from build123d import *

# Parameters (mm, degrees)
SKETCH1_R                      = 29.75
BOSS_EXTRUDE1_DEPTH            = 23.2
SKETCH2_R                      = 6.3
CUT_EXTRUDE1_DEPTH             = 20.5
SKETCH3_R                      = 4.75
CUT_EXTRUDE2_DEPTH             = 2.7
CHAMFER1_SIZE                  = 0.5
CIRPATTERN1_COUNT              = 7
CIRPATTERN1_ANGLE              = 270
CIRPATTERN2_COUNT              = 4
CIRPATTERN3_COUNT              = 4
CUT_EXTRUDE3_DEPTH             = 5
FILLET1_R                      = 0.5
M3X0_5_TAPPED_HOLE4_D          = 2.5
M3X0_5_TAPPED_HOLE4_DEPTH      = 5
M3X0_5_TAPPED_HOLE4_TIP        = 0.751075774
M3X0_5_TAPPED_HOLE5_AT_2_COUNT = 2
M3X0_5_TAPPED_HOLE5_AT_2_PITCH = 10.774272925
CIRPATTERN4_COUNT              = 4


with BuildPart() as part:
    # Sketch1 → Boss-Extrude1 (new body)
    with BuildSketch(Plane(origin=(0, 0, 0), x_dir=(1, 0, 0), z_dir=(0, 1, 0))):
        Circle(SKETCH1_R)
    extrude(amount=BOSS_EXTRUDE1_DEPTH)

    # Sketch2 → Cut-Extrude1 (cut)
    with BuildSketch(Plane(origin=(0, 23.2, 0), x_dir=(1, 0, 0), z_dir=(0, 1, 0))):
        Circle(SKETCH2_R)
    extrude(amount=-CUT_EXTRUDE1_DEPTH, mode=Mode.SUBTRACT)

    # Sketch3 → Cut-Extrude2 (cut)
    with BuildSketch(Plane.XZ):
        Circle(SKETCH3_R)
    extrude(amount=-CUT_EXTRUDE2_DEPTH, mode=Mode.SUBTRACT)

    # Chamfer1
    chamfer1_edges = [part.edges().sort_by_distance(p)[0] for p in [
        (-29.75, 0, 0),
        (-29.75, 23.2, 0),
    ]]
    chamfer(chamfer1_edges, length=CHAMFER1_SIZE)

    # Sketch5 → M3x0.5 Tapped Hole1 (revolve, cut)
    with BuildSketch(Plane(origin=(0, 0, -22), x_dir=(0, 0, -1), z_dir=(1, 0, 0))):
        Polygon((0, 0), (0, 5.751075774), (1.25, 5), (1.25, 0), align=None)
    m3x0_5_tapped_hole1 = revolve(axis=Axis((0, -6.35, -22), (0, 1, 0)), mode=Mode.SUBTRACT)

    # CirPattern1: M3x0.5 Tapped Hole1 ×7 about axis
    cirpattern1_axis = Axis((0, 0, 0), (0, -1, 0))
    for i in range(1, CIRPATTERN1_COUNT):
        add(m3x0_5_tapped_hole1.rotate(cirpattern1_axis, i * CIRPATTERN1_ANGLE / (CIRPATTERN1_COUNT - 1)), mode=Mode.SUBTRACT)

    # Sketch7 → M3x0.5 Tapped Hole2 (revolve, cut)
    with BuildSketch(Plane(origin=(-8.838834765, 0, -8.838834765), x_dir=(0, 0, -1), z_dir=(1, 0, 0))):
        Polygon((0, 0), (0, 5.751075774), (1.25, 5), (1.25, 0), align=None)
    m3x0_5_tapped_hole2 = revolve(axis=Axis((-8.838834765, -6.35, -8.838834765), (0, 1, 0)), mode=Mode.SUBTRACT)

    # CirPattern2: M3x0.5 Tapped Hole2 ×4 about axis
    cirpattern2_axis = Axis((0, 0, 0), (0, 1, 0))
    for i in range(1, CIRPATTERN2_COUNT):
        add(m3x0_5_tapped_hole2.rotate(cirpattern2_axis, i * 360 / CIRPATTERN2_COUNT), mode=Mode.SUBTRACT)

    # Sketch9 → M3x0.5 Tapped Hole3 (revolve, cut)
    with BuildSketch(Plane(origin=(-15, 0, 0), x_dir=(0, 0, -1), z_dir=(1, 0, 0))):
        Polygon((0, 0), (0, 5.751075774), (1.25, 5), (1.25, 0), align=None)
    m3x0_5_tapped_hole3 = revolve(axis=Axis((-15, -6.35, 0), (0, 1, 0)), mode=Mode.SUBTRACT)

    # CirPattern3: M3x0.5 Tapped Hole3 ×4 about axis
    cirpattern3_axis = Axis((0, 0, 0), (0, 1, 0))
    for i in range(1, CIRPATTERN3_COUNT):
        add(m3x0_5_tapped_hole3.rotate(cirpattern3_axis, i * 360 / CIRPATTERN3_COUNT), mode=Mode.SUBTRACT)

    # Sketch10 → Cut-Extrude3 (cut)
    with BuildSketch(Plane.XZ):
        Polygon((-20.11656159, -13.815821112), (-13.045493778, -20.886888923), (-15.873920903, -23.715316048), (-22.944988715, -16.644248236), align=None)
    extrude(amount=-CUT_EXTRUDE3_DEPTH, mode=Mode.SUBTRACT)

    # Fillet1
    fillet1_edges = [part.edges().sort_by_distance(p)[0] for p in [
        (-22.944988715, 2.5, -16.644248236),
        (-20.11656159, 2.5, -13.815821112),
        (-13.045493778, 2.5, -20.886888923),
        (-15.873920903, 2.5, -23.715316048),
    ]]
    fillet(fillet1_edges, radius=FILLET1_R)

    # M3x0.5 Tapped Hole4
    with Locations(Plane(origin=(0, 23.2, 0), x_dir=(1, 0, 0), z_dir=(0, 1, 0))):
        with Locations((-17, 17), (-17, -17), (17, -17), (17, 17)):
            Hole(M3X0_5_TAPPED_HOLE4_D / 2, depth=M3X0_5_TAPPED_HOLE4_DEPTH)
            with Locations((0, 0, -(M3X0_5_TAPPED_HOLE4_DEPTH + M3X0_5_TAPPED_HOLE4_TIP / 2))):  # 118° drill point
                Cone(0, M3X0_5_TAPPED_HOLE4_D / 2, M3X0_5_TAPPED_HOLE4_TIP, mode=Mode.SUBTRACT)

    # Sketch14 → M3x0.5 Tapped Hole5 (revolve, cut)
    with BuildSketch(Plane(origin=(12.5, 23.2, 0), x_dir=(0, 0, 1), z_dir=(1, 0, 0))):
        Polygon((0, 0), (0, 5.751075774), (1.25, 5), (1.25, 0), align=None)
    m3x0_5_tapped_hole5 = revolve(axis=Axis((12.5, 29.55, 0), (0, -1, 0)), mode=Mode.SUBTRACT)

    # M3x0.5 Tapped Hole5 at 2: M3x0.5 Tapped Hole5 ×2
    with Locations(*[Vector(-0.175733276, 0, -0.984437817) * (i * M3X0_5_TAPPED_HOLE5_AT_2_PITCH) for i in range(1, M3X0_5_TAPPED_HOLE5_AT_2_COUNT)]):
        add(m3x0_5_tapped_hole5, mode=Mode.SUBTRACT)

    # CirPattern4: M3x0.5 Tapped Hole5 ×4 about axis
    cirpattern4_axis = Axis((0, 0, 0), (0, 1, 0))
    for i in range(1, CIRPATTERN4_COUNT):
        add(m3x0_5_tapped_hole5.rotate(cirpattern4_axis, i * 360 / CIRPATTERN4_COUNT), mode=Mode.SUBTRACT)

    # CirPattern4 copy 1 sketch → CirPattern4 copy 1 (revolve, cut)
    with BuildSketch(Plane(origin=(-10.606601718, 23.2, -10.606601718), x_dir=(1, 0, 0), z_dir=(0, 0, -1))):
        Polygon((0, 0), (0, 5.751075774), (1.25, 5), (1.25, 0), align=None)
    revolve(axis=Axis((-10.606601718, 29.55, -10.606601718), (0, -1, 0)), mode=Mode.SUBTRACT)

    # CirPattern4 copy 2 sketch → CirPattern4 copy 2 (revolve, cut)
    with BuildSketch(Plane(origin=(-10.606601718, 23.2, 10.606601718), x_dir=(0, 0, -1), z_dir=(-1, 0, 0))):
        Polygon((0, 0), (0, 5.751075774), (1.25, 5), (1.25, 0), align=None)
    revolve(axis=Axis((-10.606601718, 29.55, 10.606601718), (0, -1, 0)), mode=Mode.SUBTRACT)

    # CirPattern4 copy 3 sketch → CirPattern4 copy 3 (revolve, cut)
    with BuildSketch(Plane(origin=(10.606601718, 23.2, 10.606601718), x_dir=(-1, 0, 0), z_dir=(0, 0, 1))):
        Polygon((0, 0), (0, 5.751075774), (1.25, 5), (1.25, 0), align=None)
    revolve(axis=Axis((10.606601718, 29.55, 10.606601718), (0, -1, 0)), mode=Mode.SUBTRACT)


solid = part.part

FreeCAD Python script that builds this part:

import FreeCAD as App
import Part
import Sketcher
from FreeCAD import Vector
Q = App.Units.Quantity


def edges_at(feature, points):
    """Names of the edges that pass closest to the given points."""
    edges = feature.Shape.Edges
    near = lambda p: min(range(len(edges)), key=lambda i: edges[i].distToShape(Part.Vertex(*p))[0])
    return sorted({f"Edge{near(p) + 1}" for p in points})


def add_polygon(sketch, points):
    """Adds a closed chain of lines whose ends are joined by coincident constraints."""
    first, n = sketch.GeometryCount, len(points)
    for a, b in zip(points, points[1:] + points[:1]):
        sketch.addGeometry(Part.LineSegment(App.Vector(*a, 0), App.Vector(*b, 0)), False)
    for i in range(n):
        sketch.addConstraint(Sketcher.Constraint("Coincident", first + i, 2, first + (i + 1) % n, 1))

doc = App.newDocument("Part")
body = doc.addObject("PartDesign::Body", "Body")

# Sketch on XZ plane
sketch1 = body.newObject("Sketcher::SketchObject", "Sketch")
sketch1.AttachmentSupport = (doc.getObject("XZ_Plane"), [""])
sketch1.MapMode = "FlatFace"
sketch1.addGeometry(Part.Circle(Vector(0, 0, 0), Vector(0, 0, 1), 30), False)
sketch1.addConstraint([
    Sketcher.Constraint("Coincident", 0, 3, -1, 1),
    Sketcher.Constraint("Diameter", 0, 59.5),
])
pad1 = body.newObject("PartDesign::Pad", "Pad")
pad1.Profile = sketch1
pad1.Length = 23.2
pad1.Reversed = True

# Sketch on XZ plane
sketch2 = body.newObject("Sketcher::SketchObject", "Sketch001")
sketch2.AttachmentSupport = (doc.getObject("XZ_Plane"), [""])
sketch2.MapMode = "FlatFace"
sketch2.AttachmentOffset = App.Placement(Vector(0, 0, -23.2), App.Rotation())
sketch2.addGeometry(Part.Circle(Vector(0, 0, 0), Vector(0, 0, 1), 6), False)
sketch2.addConstraint([
    Sketcher.Constraint("Coincident", 0, 3, -1, 1),
    Sketcher.Constraint("Diameter", 0, 12.6),
])
pocket1 = body.newObject("PartDesign::Pocket", "Pocket")
pocket1.Profile = sketch2
pocket1.Length = 20.5
pocket1.Reversed = True

# Sketch on XZ plane
sketch3 = body.newObject("Sketcher::SketchObject", "Sketch002")
sketch3.AttachmentSupport = (doc.getObject("XZ_Plane"), [""])
sketch3.MapMode = "FlatFace"
sketch3.addGeometry(Part.Circle(Vector(0, 0, 0), Vector(0, 0, 1), 4.8), False)
sketch3.addConstraint([
    Sketcher.Constraint("Coincident", 0, 3, -1, 1),
    Sketcher.Constraint("Diameter", 0, 9.5),
])
pocket2 = body.newObject("PartDesign::Pocket", "Pocket001")
pocket2.Profile = sketch3
pocket2.Length = 2.7
doc.recompute()

chamfer = body.newObject("PartDesign::Chamfer", "Chamfer")
chamfer.Base = (pocket2, edges_at(pocket2, [(-29.75, 0, 0), (-29.75, 23.2, 0)]))
chamfer.Size = 0.5

# Sketch on YZ plane
sketch4 = body.newObject("Sketcher::SketchObject", "Sketch003")
sketch4.AttachmentSupport = (doc.getObject("YZ_Plane"), [""])
sketch4.MapMode = "FlatFace"
add_polygon(sketch4, [(5.8, -22), (0, -22), (0, -23.2), (5, -23.2)])  # lines 0-3
sketch4.addGeometry(Part.LineSegment(Vector(0, -22, 0), Vector(5.8, -22, 0)), True)  # axis
sketch4.addConstraint([
    Sketcher.Constraint("Horizontal", 0),
    Sketcher.Constraint("Vertical", 1),
    Sketcher.Constraint("Horizontal", 2),
    Sketcher.Constraint("Horizontal", 4),
    Sketcher.Constraint("Coincident", 4, 1, 0, 2),
    Sketcher.Constraint("PointOnObject", 0, 2, -2),
    Sketcher.Constraint("Equal", 0, 4),
    Sketcher.Constraint("DistanceX", 2, 1, 2, 2, 5.0),
    Sketcher.Constraint("Angle", 3, Q("59 deg")),
    Sketcher.Constraint("DistanceY", 0, 2, -1, 1, 22.0),
    Sketcher.Constraint("DistanceY", 1, 2, 1, 1, 1.25),
])
groove = body.newObject("PartDesign::Groove", "Groove")
groove.Profile = sketch4
groove.ReferenceAxis = (sketch4, ["Axis0"])
groove.Angle = 360
doc.recompute()

polarpattern = body.newObject("PartDesign::PolarPattern", "PolarPattern")
polarpattern.Originals = [groove]
polarpattern.Axis = (doc.getObject("Y_Axis"), [""])
polarpattern.Angle = 270
polarpattern.Occurrences = 7
polarpattern.Reversed = True
body.Tip = polarpattern

# Sketch on YZ plane
sketch5 = body.newObject("Sketcher::SketchObject", "Sketch004")
sketch5.AttachmentSupport = (doc.getObject("YZ_Plane"), [""])
sketch5.MapMode = "FlatFace"
sketch5.AttachmentOffset = App.Placement(Vector(0, 0, -8.838835), App.Rotation())
add_polygon(sketch5, [(5.8, -8.8), (0, -8.8), (0, -10.1), (5, -10.1)])  # lines 0-3
sketch5.addGeometry(Part.LineSegment(Vector(0, -8.8, 0), Vector(5.8, -8.8, 0)), True)  # axis
sketch5.addConstraint([
    Sketcher.Constraint("Horizontal", 0),
    Sketcher.Constraint("Vertical", 1),
    Sketcher.Constraint("Horizontal", 2),
    Sketcher.Constraint("Horizontal", 4),
    Sketcher.Constraint("Coincident", 4, 1, 0, 2),
    Sketcher.Constraint("PointOnObject", 0, 2, -2),
    Sketcher.Constraint("Equal", 0, 4),
    Sketcher.Constraint("DistanceX", 2, 1, 2, 2, 5.0),
    Sketcher.Constraint("Angle", 3, Q("59 deg")),
    Sketcher.Constraint("DistanceY", 1, 2, 1, 1, 1.25),
    Sketcher.Constraint("DistanceY", 0, 2, -1, 1, 8.838835),
])
groove2 = body.newObject("PartDesign::Groove", "Groove001")
groove2.Profile = sketch5
groove2.ReferenceAxis = (sketch5, ["Axis0"])
groove2.Angle = 360
doc.recompute()

polarpattern2 = body.newObject("PartDesign::PolarPattern", "PolarPattern001")
polarpattern2.Originals = [groove2]
polarpattern2.Axis = (doc.getObject("Y_Axis"), [""])
polarpattern2.Angle = 360
polarpattern2.Occurrences = 4
body.Tip = polarpattern2

# Sketch on YZ plane
sketch6 = body.newObject("Sketcher::SketchObject", "Sketch005")
sketch6.AttachmentSupport = (doc.getObject("YZ_Plane"), [""])
sketch6.MapMode = "FlatFace"
sketch6.AttachmentOffset = App.Placement(Vector(0, 0, -15), App.Rotation())
add_polygon(sketch6, [(5.8, 0), (0, 0), (0, -1.2), (5, -1.2)])  # lines 0-3
sketch6.addConstraint([
    Sketcher.Constraint("Horizontal", 0),
    Sketcher.Constraint("Vertical", 1),
    Sketcher.Constraint("Horizontal", 2),
    Sketcher.Constraint("Coincident", 0, 2, -1, 1),
    Sketcher.Constraint("DistanceX", 2, 1, 2, 2, 5.0),
    Sketcher.Constraint("Angle", 3, Q("59 deg")),
    Sketcher.Constraint("DistanceY", 1, 2, 1, 1, 1.25),
])
groove3 = body.newObject("PartDesign::Groove", "Groove002")
groove3.Profile = sketch6
groove3.ReferenceAxis = (sketch6, ["H_Axis"])
groove3.Angle = 360
doc.recompute()

polarpattern3 = body.newObject("PartDesign::PolarPattern", "PolarPattern002")
polarpattern3.Originals = [groove3]
polarpattern3.Axis = (doc.getObject("Y_Axis"), [""])
polarpattern3.Angle = 360
polarpattern3.Occurrences = 4
body.Tip = polarpattern3

# Sketch on XZ plane
sketch7 = body.newObject("Sketcher::SketchObject", "Sketch006")
sketch7.AttachmentSupport = (doc.getObject("XZ_Plane"), [""])
sketch7.MapMode = "FlatFace"
add_polygon(sketch7, [(-13, -20.9), (-20.1, -13.8), (-22.9, -16.6), (-15.9, -23.7)])  # lines 0-3
sketch7.addConstraint([
    Sketcher.Constraint("Perpendicular", 0, 1),
    Sketcher.Constraint("Perpendicular", 1, 2),
    Sketcher.Constraint("Perpendicular", 2, 3),
    Sketcher.Constraint("Angle", 0, Q("135 deg")),
    Sketcher.Constraint("Distance", 0, 10.0),
    Sketcher.Constraint("Distance", 1, 4.0),
    Sketcher.Constraint("DistanceX", 0, 2, -1, 1, 20.116562),
    Sketcher.Constraint("DistanceY", 0, 2, -1, 1, 13.815821),
])
pocket3 = body.newObject("PartDesign::Pocket", "Pocket002")
pocket3.Profile = sketch7
pocket3.Length = 5
doc.recompute()

fillet = body.newObject("PartDesign::Fillet", "Fillet")
fillet.Base = (pocket3, edges_at(pocket3, [
    (-22.945, 2.5, -16.644),
    (-20.117, 2.5, -13.816),
    (-13.045, 2.5, -20.887),
    (-15.874, 2.5, -23.715),
]))
fillet.Radius = 0.5

# Sketch on XZ plane
sketch8 = body.newObject("Sketcher::SketchObject", "Sketch007")
sketch8.AttachmentSupport = (doc.getObject("XZ_Plane"), [""])
sketch8.MapMode = "FlatFace"
sketch8.AttachmentOffset = App.Placement(Vector(0, 0, -23.2), App.Rotation())
sketch8.addGeometry([
    Part.Circle(Vector(-17, -17, 0), Vector(0, 0, 1), 1.2),
    Part.Circle(Vector(-17, 17, 0), Vector(0, 0, 1), 1.2),
    Part.Circle(Vector(17, 17, 0), Vector(0, 0, 1), 1.2),
    Part.Circle(Vector(17, -17, 0), Vector(0, 0, 1), 1.2),
], False)
sketch8.addConstraint([
    Sketcher.Constraint("Equal", 0, 1),
    Sketcher.Constraint("Equal", 1, 2),
    Sketcher.Constraint("Equal", 2, 3),
    Sketcher.Constraint("Symmetric", 0, 3, 2, 3, -1, 1),
    Sketcher.Constraint("Symmetric", 1, 3, 3, 3, -1, 1),
    Sketcher.Constraint("Symmetric", 1, 3, 2, 3, -2),
    Sketcher.Constraint("Diameter", 0, 2.5),
    Sketcher.Constraint("DistanceX", 0, 3, -1, 1, 17.0),
    Sketcher.Constraint("DistanceY", 0, 3, -1, 1, 17.0),
])
doc.recompute()
hole = body.newObject("PartDesign::Hole", "Hole")
hole.Profile = sketch8
hole.ThreadType = "None"
hole.Diameter = 2.5
hole.DepthType = "Dimension"
hole.Depth = 5
hole.DrillPoint = "Angled"
hole.DrillPointAngle = 118
hole.Reversed = True

# Sketch on YZ plane
sketch9 = body.newObject("Sketcher::SketchObject", "Sketch008")
sketch9.AttachmentSupport = (doc.getObject("YZ_Plane"), [""])
sketch9.MapMode = "FlatFace"
sketch9.AttachmentOffset = App.Placement(Vector(0, 0, 12.5), App.Rotation())
add_polygon(sketch9, [(17.4, 0), (23.2, 0), (23.2, 1.2), (18.2, 1.2)])  # lines 0-3
sketch9.addConstraint([
    Sketcher.Constraint("Horizontal", 0),
    Sketcher.Constraint("Vertical", 1),
    Sketcher.Constraint("Horizontal", 2),
    Sketcher.Constraint("PointOnObject", 0, 2, -1),
    Sketcher.Constraint("DistanceX", 2, 2, 2, 1, 5.0),
    Sketcher.Constraint("Angle", 3, Q("-121 deg")),
    Sketcher.Constraint("DistanceY", 1, 1, 1, 2, 1.25),
    Sketcher.Constraint("DistanceX", -1, 1, 0, 2, 23.2),
])
groove4 = body.newObject("PartDesign::Groove", "Groove003")
groove4.Profile = sketch9
groove4.ReferenceAxis = (sketch9, ["H_Axis"])
groove4.Angle = 360
doc.recompute()

datumline = body.newObject("PartDesign::Line", "DatumLine")
datumline.Placement = App.Placement(Vector(0, 0, 0), App.Rotation(Vector(0, 0, 1), Vector(-0.175733276, 0, -0.984437817)))
linearpattern = body.newObject("PartDesign::LinearPattern", "LinearPattern")
linearpattern.Originals = [groove4]
linearpattern.Direction = (datumline, [""])
linearpattern.Mode = "offset"
linearpattern.Offset = 10.774273
linearpattern.Occurrences = 2
body.Tip = linearpattern
doc.recompute()

polarpattern4 = body.newObject("PartDesign::PolarPattern", "PolarPattern003")
polarpattern4.Originals = [groove4]
polarpattern4.Axis = (doc.getObject("Y_Axis"), [""])
polarpattern4.Angle = 360
polarpattern4.Occurrences = 4
body.Tip = polarpattern4

# Sketch on XY plane
sketch10 = body.newObject("Sketcher::SketchObject", "Sketch009")
sketch10.AttachmentSupport = (doc.getObject("XY_Plane"), [""])
sketch10.MapMode = "FlatFace"
sketch10.AttachmentOffset = App.Placement(Vector(0, 0, -10.606602), App.Rotation())
add_polygon(sketch10, [(-10.6, 17.4), (-10.6, 23.2), (-9.4, 23.2), (-9.4, 18.2)])  # lines 0-3
sketch10.addGeometry(Part.LineSegment(Vector(-10.6, 23.2, 0), Vector(-10.6, 17.4, 0)), True)  # axis
sketch10.addConstraint([
    Sketcher.Constraint("Vertical", 0),
    Sketcher.Constraint("Horizontal", 1),
    Sketcher.Constraint("Vertical", 2),
    Sketcher.Constraint("Vertical", 4),
    Sketcher.Constraint("Coincident", 4, 1, 0, 2),
    Sketcher.Constraint("Equal", 0, 4),
    Sketcher.Constraint("DistanceY", 2, 2, 2, 1, 5.0),
    Sketcher.Constraint("Angle", 3, Q("-149 deg")),
    Sketcher.Constraint("DistanceX", 1, 1, 1, 2, 1.25),
    Sketcher.Constraint("DistanceY", -1, 1, 0, 2, 23.2),
    Sketcher.Constraint("DistanceX", 0, 2, -1, 1, 10.606602),
])
groove5 = body.newObject("PartDesign::Groove", "Groove004")
groove5.Profile = sketch10
groove5.ReferenceAxis = (sketch10, ["Axis0"])
groove5.Angle = 360

# Sketch on YZ plane
sketch11 = body.newObject("Sketcher::SketchObject", "Sketch010")
sketch11.AttachmentSupport = (doc.getObject("YZ_Plane"), [""])
sketch11.MapMode = "FlatFace"
sketch11.AttachmentOffset = App.Placement(Vector(0, 0, -10.606602), App.Rotation())
add_polygon(sketch11, [(17.4, 10.6), (23.2, 10.6), (23.2, 9.4), (18.2, 9.4)])  # lines 0-3
sketch11.addGeometry(Part.LineSegment(Vector(23.2, 10.6, 0), Vector(17.4, 10.6, 0)), True)  # axis
sketch11.addConstraint([
    Sketcher.Constraint("Horizontal", 0),
    Sketcher.Constraint("Vertical", 1),
    Sketcher.Constraint("Horizontal", 2),
    Sketcher.Constraint("Horizontal", 4),
    Sketcher.Constraint("Coincident", 4, 1, 0, 2),
    Sketcher.Constraint("Equal", 0, 4),
    Sketcher.Constraint("DistanceX", 2, 2, 2, 1, 5.0),
    Sketcher.Constraint("Angle", 3, Q("121 deg")),
    Sketcher.Constraint("DistanceY", 1, 2, 1, 1, 1.25),
    Sketcher.Constraint("DistanceX", -1, 1, 0, 2, 23.2),
    Sketcher.Constraint("DistanceY", -1, 1, 0, 2, 10.606602),
])
groove6 = body.newObject("PartDesign::Groove", "Groove005")
groove6.Profile = sketch11
groove6.ReferenceAxis = (sketch11, ["Axis0"])
groove6.Angle = 360

# Sketch on XY plane
sketch12 = body.newObject("Sketcher::SketchObject", "Sketch011")
sketch12.AttachmentSupport = (doc.getObject("XY_Plane"), [""])
sketch12.MapMode = "FlatFace"
sketch12.AttachmentOffset = App.Placement(Vector(0, 0, 10.606602), App.Rotation())
add_polygon(sketch12, [(10.6, 17.4), (10.6, 23.2), (9.4, 23.2), (9.4, 18.2)])  # lines 0-3
sketch12.addGeometry(Part.LineSegment(Vector(10.6, 23.2, 0), Vector(10.6, 17.4, 0)), True)  # axis
sketch12.addConstraint([
    Sketcher.Constraint("Vertical", 0),
    Sketcher.Constraint("Horizontal", 1),
    Sketcher.Constraint("Vertical", 2),
    Sketcher.Constraint("Vertical", 4),
    Sketcher.Constraint("Coincident", 4, 1, 0, 2),
    Sketcher.Constraint("Equal", 0, 4),
    Sketcher.Constraint("DistanceY", 2, 2, 2, 1, 5.0),
    Sketcher.Constraint("Angle", 3, Q("-31 deg")),
    Sketcher.Constraint("DistanceX", 1, 2, 1, 1, 1.25),
    Sketcher.Constraint("DistanceY", -1, 1, 0, 2, 23.2),
    Sketcher.Constraint("DistanceX", -1, 1, 0, 2, 10.606602),
])
groove7 = body.newObject("PartDesign::Groove", "Groove006")
groove7.Profile = sketch12
groove7.ReferenceAxis = (sketch12, ["Axis0"])
groove7.Angle = 360

doc.recompute()
